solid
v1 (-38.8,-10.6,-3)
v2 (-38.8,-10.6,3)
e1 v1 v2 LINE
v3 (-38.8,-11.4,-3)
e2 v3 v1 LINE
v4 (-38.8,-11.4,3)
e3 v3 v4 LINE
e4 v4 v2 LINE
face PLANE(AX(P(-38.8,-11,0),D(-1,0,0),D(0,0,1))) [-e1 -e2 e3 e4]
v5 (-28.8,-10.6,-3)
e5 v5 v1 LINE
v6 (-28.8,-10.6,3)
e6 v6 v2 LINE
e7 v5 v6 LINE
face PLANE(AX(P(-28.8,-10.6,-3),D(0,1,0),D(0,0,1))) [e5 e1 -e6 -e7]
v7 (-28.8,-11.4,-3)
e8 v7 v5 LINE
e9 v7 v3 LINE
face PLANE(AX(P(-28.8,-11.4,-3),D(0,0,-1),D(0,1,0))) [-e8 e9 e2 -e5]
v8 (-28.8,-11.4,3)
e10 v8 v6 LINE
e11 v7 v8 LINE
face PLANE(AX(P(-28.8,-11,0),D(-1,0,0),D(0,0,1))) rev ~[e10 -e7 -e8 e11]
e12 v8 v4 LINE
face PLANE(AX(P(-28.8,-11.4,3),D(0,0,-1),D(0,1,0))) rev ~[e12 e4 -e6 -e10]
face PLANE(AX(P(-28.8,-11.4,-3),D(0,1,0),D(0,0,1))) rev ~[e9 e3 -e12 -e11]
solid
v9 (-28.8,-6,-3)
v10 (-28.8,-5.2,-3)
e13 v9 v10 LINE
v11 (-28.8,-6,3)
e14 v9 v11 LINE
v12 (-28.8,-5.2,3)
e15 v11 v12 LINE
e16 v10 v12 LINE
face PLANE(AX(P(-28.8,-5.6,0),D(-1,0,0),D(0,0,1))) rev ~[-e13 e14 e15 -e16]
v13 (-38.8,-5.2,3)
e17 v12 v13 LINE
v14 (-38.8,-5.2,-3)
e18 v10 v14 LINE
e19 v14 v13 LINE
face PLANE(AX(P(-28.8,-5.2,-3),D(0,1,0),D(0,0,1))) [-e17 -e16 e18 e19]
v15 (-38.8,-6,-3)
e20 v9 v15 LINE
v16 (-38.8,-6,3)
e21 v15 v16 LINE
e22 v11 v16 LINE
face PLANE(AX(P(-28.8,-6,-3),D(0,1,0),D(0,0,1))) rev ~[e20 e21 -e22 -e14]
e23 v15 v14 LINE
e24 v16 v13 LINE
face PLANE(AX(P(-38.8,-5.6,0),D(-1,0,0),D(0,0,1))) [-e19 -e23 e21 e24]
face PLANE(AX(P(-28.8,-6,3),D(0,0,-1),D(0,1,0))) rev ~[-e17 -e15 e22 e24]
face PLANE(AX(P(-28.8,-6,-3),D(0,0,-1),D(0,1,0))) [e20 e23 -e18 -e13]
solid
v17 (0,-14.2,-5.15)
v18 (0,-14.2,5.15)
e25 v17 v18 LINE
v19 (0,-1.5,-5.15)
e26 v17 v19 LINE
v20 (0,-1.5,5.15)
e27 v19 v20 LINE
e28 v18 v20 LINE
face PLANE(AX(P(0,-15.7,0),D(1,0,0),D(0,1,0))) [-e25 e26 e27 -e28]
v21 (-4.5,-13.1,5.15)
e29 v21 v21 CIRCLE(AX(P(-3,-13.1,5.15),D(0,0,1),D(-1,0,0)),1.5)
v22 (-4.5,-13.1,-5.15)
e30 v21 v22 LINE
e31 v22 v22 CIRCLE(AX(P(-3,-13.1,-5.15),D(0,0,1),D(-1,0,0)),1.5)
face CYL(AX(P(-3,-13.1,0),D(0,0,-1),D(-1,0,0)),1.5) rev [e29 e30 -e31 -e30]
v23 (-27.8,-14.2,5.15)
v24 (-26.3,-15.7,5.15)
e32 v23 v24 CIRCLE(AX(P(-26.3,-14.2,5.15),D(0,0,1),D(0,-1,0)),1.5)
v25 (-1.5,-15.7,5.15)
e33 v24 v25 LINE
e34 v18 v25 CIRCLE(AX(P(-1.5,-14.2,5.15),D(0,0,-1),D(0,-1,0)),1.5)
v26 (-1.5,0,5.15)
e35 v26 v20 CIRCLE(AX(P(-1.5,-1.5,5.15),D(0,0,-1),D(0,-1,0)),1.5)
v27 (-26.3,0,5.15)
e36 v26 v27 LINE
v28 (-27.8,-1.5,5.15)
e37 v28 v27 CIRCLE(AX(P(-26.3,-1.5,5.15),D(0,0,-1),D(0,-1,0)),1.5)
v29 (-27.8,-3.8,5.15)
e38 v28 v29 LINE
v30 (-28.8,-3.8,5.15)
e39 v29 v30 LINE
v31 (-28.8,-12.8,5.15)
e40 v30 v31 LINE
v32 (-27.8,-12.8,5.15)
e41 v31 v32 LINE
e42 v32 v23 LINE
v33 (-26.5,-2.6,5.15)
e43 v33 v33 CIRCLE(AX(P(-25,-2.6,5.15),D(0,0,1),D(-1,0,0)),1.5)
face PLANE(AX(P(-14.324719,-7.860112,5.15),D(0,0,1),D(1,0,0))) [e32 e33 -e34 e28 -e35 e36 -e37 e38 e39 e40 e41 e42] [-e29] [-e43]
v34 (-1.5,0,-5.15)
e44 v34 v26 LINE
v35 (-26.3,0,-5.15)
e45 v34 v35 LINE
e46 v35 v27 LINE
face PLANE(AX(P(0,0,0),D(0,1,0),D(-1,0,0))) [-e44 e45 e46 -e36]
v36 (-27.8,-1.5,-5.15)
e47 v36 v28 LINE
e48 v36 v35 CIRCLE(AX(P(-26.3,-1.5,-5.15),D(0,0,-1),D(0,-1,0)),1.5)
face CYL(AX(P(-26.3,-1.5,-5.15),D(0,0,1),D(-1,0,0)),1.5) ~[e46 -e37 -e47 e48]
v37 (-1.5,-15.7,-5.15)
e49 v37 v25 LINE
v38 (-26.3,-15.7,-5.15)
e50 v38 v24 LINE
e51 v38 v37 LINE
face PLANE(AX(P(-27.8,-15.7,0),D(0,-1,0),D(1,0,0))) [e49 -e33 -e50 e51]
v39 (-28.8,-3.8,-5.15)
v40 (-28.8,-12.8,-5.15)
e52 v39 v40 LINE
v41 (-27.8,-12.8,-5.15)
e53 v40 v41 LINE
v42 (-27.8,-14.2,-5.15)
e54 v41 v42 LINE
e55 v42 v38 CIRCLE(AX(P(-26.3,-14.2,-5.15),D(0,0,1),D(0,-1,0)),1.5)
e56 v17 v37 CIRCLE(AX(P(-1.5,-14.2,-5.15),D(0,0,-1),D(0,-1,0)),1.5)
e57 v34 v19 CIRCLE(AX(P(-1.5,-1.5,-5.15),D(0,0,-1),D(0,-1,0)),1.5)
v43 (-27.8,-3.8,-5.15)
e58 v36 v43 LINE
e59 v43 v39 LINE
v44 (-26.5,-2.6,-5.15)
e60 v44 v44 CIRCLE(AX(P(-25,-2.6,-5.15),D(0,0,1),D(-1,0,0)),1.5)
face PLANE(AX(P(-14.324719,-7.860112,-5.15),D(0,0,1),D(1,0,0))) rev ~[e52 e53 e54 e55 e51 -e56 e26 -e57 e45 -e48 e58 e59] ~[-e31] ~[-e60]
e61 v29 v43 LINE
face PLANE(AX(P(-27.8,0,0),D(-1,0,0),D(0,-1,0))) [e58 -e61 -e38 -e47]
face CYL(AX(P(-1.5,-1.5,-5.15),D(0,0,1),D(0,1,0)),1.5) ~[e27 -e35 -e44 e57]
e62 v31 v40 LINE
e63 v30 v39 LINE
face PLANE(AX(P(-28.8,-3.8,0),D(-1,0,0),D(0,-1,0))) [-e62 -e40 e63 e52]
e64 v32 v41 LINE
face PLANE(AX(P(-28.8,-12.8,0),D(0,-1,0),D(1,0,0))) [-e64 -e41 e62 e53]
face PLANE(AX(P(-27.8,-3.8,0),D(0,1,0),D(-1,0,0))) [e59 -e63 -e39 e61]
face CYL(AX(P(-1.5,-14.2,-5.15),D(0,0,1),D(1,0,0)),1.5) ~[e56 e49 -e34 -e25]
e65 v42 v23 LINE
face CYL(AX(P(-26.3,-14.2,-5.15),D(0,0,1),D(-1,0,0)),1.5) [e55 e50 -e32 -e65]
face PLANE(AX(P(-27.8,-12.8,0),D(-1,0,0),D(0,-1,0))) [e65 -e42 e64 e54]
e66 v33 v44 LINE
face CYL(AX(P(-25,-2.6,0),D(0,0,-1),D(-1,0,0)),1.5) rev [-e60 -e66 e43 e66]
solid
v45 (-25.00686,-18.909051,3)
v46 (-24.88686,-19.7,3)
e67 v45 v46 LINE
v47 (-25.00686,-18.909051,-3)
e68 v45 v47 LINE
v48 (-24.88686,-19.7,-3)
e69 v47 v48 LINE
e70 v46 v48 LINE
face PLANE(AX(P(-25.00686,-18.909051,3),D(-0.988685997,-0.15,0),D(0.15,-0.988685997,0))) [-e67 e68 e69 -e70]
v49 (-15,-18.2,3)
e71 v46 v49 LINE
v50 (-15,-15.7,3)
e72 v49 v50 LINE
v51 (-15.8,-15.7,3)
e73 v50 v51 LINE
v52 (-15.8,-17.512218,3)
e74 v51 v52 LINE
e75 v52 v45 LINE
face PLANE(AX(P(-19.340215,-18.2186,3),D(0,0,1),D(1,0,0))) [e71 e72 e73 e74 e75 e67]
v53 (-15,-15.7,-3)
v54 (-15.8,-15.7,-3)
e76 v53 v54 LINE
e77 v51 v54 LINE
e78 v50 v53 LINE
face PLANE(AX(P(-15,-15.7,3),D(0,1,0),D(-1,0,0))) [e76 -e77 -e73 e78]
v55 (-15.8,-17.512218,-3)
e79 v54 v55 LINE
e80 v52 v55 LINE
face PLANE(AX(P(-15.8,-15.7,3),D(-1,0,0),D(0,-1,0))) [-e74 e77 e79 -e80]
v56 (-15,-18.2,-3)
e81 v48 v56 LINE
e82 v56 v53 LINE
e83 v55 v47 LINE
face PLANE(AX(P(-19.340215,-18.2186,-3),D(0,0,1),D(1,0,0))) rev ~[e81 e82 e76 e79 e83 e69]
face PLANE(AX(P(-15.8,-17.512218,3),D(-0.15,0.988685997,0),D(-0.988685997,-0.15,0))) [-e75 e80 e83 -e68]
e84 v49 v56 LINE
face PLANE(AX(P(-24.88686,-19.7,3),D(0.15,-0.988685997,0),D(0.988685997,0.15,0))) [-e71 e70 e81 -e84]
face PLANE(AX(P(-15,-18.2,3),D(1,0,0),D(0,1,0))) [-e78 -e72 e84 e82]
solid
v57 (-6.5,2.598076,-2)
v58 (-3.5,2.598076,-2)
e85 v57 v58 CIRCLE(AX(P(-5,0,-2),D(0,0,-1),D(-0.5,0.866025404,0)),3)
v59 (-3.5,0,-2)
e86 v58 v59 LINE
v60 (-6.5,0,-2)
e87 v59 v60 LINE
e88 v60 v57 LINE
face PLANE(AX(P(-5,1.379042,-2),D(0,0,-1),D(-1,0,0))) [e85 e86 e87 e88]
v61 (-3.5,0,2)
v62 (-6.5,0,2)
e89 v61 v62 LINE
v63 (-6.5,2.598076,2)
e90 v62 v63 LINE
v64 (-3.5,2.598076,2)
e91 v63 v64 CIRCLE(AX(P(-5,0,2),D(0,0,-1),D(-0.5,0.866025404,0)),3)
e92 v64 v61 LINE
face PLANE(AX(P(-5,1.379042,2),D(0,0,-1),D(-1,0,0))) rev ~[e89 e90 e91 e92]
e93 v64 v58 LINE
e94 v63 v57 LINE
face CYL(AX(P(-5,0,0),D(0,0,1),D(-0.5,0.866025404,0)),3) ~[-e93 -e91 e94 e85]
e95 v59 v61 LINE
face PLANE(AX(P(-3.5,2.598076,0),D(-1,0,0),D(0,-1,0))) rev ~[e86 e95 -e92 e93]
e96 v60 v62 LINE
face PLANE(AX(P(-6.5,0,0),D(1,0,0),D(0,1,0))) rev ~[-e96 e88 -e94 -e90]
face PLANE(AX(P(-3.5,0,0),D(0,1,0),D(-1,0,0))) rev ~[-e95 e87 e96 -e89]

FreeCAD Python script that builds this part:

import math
import FreeCAD as App
import Part
import Sketcher

V = App.Vector
Q = App.Units.Quantity


def edges_at(feature, points):
    """Names of the edges that pass closest to the given points."""
    edges = feature.Shape.Edges
    near = lambda p: min(range(len(edges)), key=lambda i: edges[i].distToShape(Part.Vertex(*p))[0])
    return sorted({f"Edge{near(p) + 1}" for p in points})

doc = App.newDocument("Part")
body = doc.addObject("PartDesign::Body", "Body")

sketch1 = body.newObject("Sketcher::SketchObject", "Sketch")
sketch1.AttachmentSupport = (doc.getObject("XY_Plane"), [""])
sketch1.MapMode = "FlatFace"
sketch1.addGeometry([
    Part.LineSegment(V(-27.8, -12.8, 0), V(-27.8, -15.7, 0)),
    Part.LineSegment(V(-27.8, -15.7, 0), V(0, -15.7, 0)),
    Part.LineSegment(V(0, -15.7, 0), V(0, 0, 0)),
    Part.LineSegment(V(0, 0, 0), V(-27.8, 0, 0)),
    Part.LineSegment(V(-27.8, 0, 0), V(-27.8, -3.8, 0)),
    Part.LineSegment(V(-27.8, -3.8, 0), V(-28.8, -3.8, 0)),
    Part.LineSegment(V(-28.8, -3.8, 0), V(-28.8, -12.8, 0)),
    Part.LineSegment(V(-28.8, -12.8, 0), V(-27.8, -12.8, 0)),
    Part.Circle(V(-3, -13.1, 0), V(0, 0, 1), 1.5),
    Part.Circle(V(-25, -2.6, 0), V(0, 0, 1), 1.5),
], False)
sketch1.addConstraint([
    Sketcher.Constraint("Coincident", 0, 2, 1, 1),
    Sketcher.Constraint("Coincident", 1, 2, 2, 1),
    Sketcher.Constraint("Coincident", 2, 2, 3, 1),
    Sketcher.Constraint("Coincident", 3, 2, 4, 1),
    Sketcher.Constraint("Coincident", 4, 2, 5, 1),
    Sketcher.Constraint("Coincident", 5, 2, 6, 1),
    Sketcher.Constraint("Coincident", 6, 2, 7, 1),
    Sketcher.Constraint("Coincident", 7, 2, 0, 1),
    Sketcher.Constraint("Vertical", 0),
    Sketcher.Constraint("Horizontal", 1),
    Sketcher.Constraint("Vertical", 2),
    Sketcher.Constraint("Horizontal", 3),
    Sketcher.Constraint("Vertical", 4),
    Sketcher.Constraint("Horizontal", 5),
    Sketcher.Constraint("Vertical", 6),
    Sketcher.Constraint("Horizontal", 7),
    Sketcher.Constraint("Coincident", 2, 2, -1, 1),
    Sketcher.Constraint("Equal", 8, 9),
    Sketcher.Constraint("Vertical", 0, 2, 3, 2),
    Sketcher.Constraint("Diameter", 8, Q("3 mm")),
    Sketcher.Constraint("DistanceX", 5, 2, 5, 1, Q("1 mm")),
    Sketcher.Constraint("DistanceY", 6, 2, 6, 1, Q("9 mm")),
    Sketcher.Constraint("DistanceX", 1, 1, 1, 2, Q("27.8 mm")),
    Sketcher.Constraint("DistanceY", 0, 2, 0, 1, Q("2.9 mm")),
    Sketcher.Constraint("DistanceY", 2, 1, 2, 2, Q("15.7 mm")),
    Sketcher.Constraint("DistanceX", 8, 3, -1, 1, Q("3 mm")),
    Sketcher.Constraint("DistanceX", 9, 3, -1, 1, Q("25 mm")),
    Sketcher.Constraint("DistanceY", 8, 3, -1, 1, Q("13.1 mm")),
    Sketcher.Constraint("DistanceY", 9, 3, -1, 1, Q("2.6 mm")),
])
pad1 = body.newObject("PartDesign::Pad", "Pad")
pad1.Profile = sketch1
pad1.Length = 10.3
pad1.Midplane = True
doc.recompute()

fillet = body.newObject("PartDesign::Fillet", "Fillet")
fillet.Base = (pad1, edges_at(pad1, [
    (0, -15.7, 0),
    (-27.8, -15.7, 0),
    (-27.8, 0, 0),
    (0, 0, 0),
]))
fillet.Radius = 1.5
body2 = doc.addObject("PartDesign::Body", "Body001")

sketch2 = body2.newObject("Sketcher::SketchObject", "Sketch001")
sketch2.AttachmentSupport = (doc.getObject("YZ_Plane001"), [""])
sketch2.MapMode = "FlatFace"
sketch2.AttachmentOffset = App.Placement(V(0, 0, -28.8), App.Rotation())
sketch2.addGeometry([
    Part.LineSegment(V(-5.2, -3, 0), V(-6, -3, 0)),
    Part.LineSegment(V(-6, -3, 0), V(-6, 3, 0)),
    Part.LineSegment(V(-6, 3, 0), V(-5.2, 3, 0)),
    Part.LineSegment(V(-5.2, 3, 0), V(-5.2, -3, 0)),
], False)
sketch2.addConstraint([
    Sketcher.Constraint("Coincident", 0, 2, 1, 1),
    Sketcher.Constraint("Coincident", 1, 2, 2, 1),
    Sketcher.Constraint("Coincident", 2, 2, 3, 1),
    Sketcher.Constraint("Coincident", 3, 2, 0, 1),
    Sketcher.Constraint("Horizontal", 0),
    Sketcher.Constraint("Vertical", 1),
    Sketcher.Constraint("Horizontal", 2),
    Sketcher.Constraint("Vertical", 3),
    Sketcher.Constraint("DistanceY", 1, 1, 1, 2, Q("6 mm")),
    Sketcher.Constraint("DistanceX", 0, 2, 0, 1, Q("0.8 mm")),
    Sketcher.Constraint("DistanceX", 0, 2, -1, 1, Q("6 mm")),
    Sketcher.Constraint("DistanceY", 0, 2, -1, 1, Q("3 mm")),
])
pad2 = body2.newObject("PartDesign::Pad", "Pad001")
pad2.Profile = sketch2
pad2.Length = 10
pad2.Reversed = True
body3 = doc.addObject("PartDesign::Body", "Body002")

sketch3 = body3.newObject("Sketcher::SketchObject", "Sketch002")
sketch3.AttachmentSupport = (doc.getObject("YZ_Plane002"), [""])
sketch3.MapMode = "FlatFace"
sketch3.AttachmentOffset = App.Placement(V(0, 0, -28.8), App.Rotation())
sketch3.addGeometry([
    Part.LineSegment(V(-10.6, -3, 0), V(-11.4, -3, 0)),
    Part.LineSegment(V(-11.4, -3, 0), V(-11.4, 3, 0)),
    Part.LineSegment(V(-11.4, 3, 0), V(-10.6, 3, 0)),
    Part.LineSegment(V(-10.6, 3, 0), V(-10.6, -3, 0)),
], False)
sketch3.addConstraint([
    Sketcher.Constraint("Coincident", 0, 2, 1, 1),
    Sketcher.Constraint("Coincident", 1, 2, 2, 1),
    Sketcher.Constraint("Coincident", 2, 2, 3, 1),
    Sketcher.Constraint("Coincident", 3, 2, 0, 1),
    Sketcher.Constraint("Horizontal", 0),
    Sketcher.Constraint("Vertical", 1),
    Sketcher.Constraint("Horizontal", 2),
    Sketcher.Constraint("Vertical", 3),
    Sketcher.Constraint("DistanceY", 1, 1, 1, 2, Q("6 mm")),
    Sketcher.Constraint("DistanceX", 0, 2, 0, 1, Q("0.8 mm")),
    Sketcher.Constraint("DistanceY", 0, 2, -1, 1, Q("3 mm")),
    Sketcher.Constraint("DistanceX", 0, 2, -1, 1, Q("11.4 mm")),
])
pad3 = body3.newObject("PartDesign::Pad", "Pad002")
pad3.Profile = sketch3
pad3.Length = 10
pad3.Reversed = True
body4 = doc.addObject("PartDesign::Body", "Body003")

sketch4 = body4.newObject("Sketcher::SketchObject", "Sketch003")
sketch4.AttachmentSupport = (doc.getObject("XY_Plane003"), [""])
sketch4.MapMode = "FlatFace"
sketch4.AttachmentOffset = App.Placement(V(0, 0, 3), App.Rotation())
sketch4.addGeometry([
    Part.LineSegment(V(-25, -18.9, 0), V(-24.9, -19.7, 0)),
    Part.LineSegment(V(-24.9, -19.7, 0), V(-15, -18.2, 0)),
    Part.LineSegment(V(-15, -18.2, 0), V(-15, -15.7, 0)),
    Part.LineSegment(V(-15, -15.7, 0), V(-15.8, -15.7, 0)),
    Part.LineSegment(V(-15.8, -15.7, 0), V(-15.8, -17.5, 0)),
    Part.LineSegment(V(-15.8, -17.5, 0), V(-25, -18.9, 0)),
], False)
sketch4.addConstraint([
    Sketcher.Constraint("Coincident", 0, 2, 1, 1),
    Sketcher.Constraint("Coincident", 1, 2, 2, 1),
    Sketcher.Constraint("Coincident", 2, 2, 3, 1),
    Sketcher.Constraint("Coincident", 3, 2, 4, 1),
    Sketcher.Constraint("Coincident", 4, 2, 5, 1),
    Sketcher.Constraint("Coincident", 5, 2, 0, 1),
    Sketcher.Constraint("Vertical", 2),
    Sketcher.Constraint("Horizontal", 3),
    Sketcher.Constraint("Vertical", 4),
    Sketcher.Constraint("Perpendicular", 0, 1),
    Sketcher.Constraint("Parallel", 1, 5),
    Sketcher.Constraint("Distance", 1, Q("10 mm")),
    Sketcher.Constraint("DistanceX", 3, 2, 3, 1, Q("0.8 mm")),
    Sketcher.Constraint("DistanceY", 2, 1, 2, 2, Q("2.5 mm")),
    Sketcher.Constraint("DistanceX", 1, 2, -1, 1, Q("15 mm")),
    Sketcher.Constraint("DistanceY", 0, 2, 2, 2, Q("4 mm")),
    Sketcher.Constraint("Distance", 0, Q("0.8 mm")),
    Sketcher.Constraint("DistanceY", 0, 2, -1, 1, Q("19.7 mm")),
])
pad4 = body4.newObject("PartDesign::Pad", "Pad003")
pad4.Profile = sketch4
pad4.Length = 6
pad4.Reversed = True
body5 = doc.addObject("PartDesign::Body", "Body004")

sketch5 = body5.newObject("Sketcher::SketchObject", "Sketch004")
sketch5.AttachmentSupport = (doc.getObject("XY_Plane004"), [""])
sketch5.MapMode = "FlatFace"
sketch5.addGeometry([
    Part.LineSegment(V(-6.5, 2.6, 0), V(-6.5, 0, 0)),
    Part.LineSegment(V(-6.5, 0, 0), V(-3.5, 0, 0)),
    Part.LineSegment(V(-3.5, 0, 0), V(-3.5, 2.6, 0)),
    Part.ArcOfCircle(Part.Circle(V(-5, 0, 0), V(0, 0, 1), 3), math.radians(60), math.radians(120)),
], False)
sketch5.addConstraint([
    Sketcher.Constraint("Coincident", 0, 2, 1, 1),
    Sketcher.Constraint("Coincident", 1, 2, 2, 1),
    Sketcher.Constraint("Coincident", 2, 2, 3, 1),
    Sketcher.Constraint("Coincident", 3, 2, 0, 1),
    Sketcher.Constraint("Vertical", 0),
    Sketcher.Constraint("Horizontal", 1),
    Sketcher.Constraint("Vertical", 2),
    Sketcher.Constraint("PointOnObject", 3, 3, -1),
    Sketcher.Constraint("PointOnObject", 0, 2, -1),
    Sketcher.Constraint("Horizontal", 2, 2, 3, 2),
    Sketcher.Constraint("Radius", 3, Q("3 mm")),
    Sketcher.Constraint("DistanceX", 1, 1, 1, 2, Q("3 mm")),
    Sketcher.Constraint("DistanceX", 3, 3, -1, 1, Q("5 mm")),
])
pad5 = body5.newObject("PartDesign::Pad", "Pad004")
pad5.Profile = sketch5
pad5.Length = 4
pad5.Midplane = True

doc.recompute()
